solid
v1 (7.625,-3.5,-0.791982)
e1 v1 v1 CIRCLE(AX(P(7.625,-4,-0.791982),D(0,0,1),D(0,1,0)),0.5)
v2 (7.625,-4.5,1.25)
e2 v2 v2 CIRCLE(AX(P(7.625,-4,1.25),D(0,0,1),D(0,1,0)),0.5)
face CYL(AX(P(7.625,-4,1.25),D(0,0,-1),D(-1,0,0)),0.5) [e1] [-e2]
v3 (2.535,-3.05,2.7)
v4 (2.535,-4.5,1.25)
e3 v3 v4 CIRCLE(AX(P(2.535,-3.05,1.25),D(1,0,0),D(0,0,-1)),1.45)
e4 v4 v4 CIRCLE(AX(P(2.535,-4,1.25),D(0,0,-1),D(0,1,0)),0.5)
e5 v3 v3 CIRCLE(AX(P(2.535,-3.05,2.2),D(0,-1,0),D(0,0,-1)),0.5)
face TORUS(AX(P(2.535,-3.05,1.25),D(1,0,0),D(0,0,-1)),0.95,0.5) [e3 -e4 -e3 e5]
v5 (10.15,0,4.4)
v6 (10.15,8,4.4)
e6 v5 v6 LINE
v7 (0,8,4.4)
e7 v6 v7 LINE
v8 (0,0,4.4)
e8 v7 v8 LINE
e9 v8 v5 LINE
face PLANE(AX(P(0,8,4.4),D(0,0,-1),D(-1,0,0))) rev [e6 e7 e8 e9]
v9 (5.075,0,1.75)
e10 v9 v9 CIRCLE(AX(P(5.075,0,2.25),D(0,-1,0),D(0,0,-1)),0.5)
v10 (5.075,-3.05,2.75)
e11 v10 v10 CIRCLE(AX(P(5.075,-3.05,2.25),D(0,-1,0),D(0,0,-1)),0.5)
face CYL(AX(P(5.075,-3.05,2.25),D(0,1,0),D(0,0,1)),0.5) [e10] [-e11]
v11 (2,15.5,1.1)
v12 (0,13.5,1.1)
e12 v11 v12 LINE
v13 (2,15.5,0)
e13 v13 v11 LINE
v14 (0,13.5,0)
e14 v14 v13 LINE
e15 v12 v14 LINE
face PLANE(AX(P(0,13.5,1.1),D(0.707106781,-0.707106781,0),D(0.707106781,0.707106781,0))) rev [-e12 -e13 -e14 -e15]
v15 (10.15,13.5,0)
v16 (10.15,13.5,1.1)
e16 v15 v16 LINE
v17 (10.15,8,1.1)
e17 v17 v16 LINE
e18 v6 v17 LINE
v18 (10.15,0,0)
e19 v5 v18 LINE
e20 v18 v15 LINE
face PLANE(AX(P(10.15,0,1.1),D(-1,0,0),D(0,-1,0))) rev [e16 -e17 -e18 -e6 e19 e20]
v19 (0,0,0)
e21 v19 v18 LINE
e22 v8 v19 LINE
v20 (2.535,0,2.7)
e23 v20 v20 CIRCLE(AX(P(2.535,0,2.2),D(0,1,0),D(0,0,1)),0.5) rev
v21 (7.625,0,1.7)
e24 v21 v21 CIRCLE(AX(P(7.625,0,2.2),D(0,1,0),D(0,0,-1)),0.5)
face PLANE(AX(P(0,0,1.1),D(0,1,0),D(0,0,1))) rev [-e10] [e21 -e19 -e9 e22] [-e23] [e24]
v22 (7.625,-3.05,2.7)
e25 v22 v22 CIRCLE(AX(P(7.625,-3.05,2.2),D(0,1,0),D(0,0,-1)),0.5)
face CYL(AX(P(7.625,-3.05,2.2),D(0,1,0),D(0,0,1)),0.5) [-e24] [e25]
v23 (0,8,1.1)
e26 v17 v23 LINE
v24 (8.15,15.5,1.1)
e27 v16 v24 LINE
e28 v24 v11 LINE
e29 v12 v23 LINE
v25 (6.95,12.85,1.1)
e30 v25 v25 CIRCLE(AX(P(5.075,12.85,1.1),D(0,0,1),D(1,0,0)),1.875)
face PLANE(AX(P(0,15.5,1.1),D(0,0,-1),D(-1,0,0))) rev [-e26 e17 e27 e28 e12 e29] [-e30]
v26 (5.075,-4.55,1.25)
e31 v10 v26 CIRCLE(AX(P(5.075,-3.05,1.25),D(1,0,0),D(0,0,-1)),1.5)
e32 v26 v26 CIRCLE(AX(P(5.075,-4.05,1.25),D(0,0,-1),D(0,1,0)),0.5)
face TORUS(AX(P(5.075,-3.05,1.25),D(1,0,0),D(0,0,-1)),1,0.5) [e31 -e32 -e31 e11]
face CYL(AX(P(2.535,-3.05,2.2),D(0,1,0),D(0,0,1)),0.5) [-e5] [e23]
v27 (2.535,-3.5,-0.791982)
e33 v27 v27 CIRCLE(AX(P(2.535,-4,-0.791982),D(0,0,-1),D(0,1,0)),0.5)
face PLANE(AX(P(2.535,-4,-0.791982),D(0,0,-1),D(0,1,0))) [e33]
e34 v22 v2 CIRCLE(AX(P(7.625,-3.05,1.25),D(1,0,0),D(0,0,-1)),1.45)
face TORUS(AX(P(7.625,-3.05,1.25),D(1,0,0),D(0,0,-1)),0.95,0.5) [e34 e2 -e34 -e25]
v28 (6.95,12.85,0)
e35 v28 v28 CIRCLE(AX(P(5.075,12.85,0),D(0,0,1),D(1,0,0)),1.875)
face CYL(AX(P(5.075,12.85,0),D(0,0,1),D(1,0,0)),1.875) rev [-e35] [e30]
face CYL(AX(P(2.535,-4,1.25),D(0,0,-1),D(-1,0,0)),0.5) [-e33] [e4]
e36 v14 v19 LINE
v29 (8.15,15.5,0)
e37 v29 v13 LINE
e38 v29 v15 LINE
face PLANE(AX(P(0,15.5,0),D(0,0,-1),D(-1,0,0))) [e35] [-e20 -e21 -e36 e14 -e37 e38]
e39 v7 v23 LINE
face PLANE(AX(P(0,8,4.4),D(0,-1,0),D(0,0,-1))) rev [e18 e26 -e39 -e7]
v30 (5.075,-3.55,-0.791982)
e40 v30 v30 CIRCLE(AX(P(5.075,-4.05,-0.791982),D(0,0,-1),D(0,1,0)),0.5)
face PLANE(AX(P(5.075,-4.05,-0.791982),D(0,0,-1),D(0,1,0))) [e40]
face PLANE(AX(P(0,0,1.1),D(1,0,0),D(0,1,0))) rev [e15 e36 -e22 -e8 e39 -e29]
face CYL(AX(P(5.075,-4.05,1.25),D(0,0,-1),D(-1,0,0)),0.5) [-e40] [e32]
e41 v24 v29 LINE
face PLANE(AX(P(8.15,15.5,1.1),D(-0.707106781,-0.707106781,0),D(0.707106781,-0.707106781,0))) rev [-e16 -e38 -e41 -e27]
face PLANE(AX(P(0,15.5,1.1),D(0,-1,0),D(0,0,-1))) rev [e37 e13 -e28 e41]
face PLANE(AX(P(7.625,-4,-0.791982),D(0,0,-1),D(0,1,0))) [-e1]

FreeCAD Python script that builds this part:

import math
import FreeCAD as App
import Part
import Sketcher

V = App.Vector


def edges_at(feature, points):
    """Names of the edges that pass closest to the given points."""
    edges = feature.Shape.Edges
    near = lambda p: min(range(len(edges)), key=lambda i: edges[i].distToShape(Part.Vertex(*p))[0])
    return sorted({f"Edge{near(p) + 1}" for p in points})


def add_polygon(sketch, points):
    """Adds a closed chain of lines whose ends are joined by coincident constraints."""
    first, n = sketch.GeometryCount, len(points)
    for a, b in zip(points, points[1:] + points[:1]):
        sketch.addGeometry(Part.LineSegment(App.Vector(*a, 0), App.Vector(*b, 0)), False)
    for i in range(n):
        sketch.addConstraint(Sketcher.Constraint("Coincident", first + i, 2, first + (i + 1) % n, 1))

doc = App.newDocument("Part")
body = doc.addObject("PartDesign::Body", "Body")

sketch1 = body.newObject("Sketcher::SketchObject", "Sketch")
sketch1.AttachmentSupport = (doc.getObject("XY_Plane"), [""])
sketch1.MapMode = "FlatFace"
add_polygon(sketch1, [(0, 16), (0, 0), (10, 0), (10, 16)])
sketch1.addConstraint([
    Sketcher.Constraint("Vertical", 0),
    Sketcher.Constraint("Horizontal", 1),
    Sketcher.Constraint("Vertical", 2),
    Sketcher.Constraint("Horizontal", 3),
    Sketcher.Constraint("Coincident", 0, 2, -1, 1),
    Sketcher.Constraint("DistanceY", 0, 2, 0, 1, 15.5),
    Sketcher.Constraint("DistanceX", 1, 1, 1, 2, 10.15),
])
pad1 = body.newObject("PartDesign::Pad", "Pad")
pad1.Profile = sketch1
pad1.Length = 1.1

sketch2 = body.newObject("Sketcher::SketchObject", "Sketch001")
sketch2.AttachmentSupport = (doc.getObject("XY_Plane"), [""])
sketch2.MapMode = "FlatFace"
sketch2.AttachmentOffset = App.Placement(V(0, 0, 1.1), App.Rotation())
sketch2.addGeometry(Part.Circle(V(5.1, 12.8, 0), V(0, 0, 1), 1.9), False)
sketch2.addConstraint([
    Sketcher.Constraint("Diameter", 0, 3.75),
    Sketcher.Constraint("DistanceY", -1, 1, 0, 3, 12.85),
    Sketcher.Constraint("DistanceX", -1, 1, 0, 3, 5.075),
])
pocket1 = body.newObject("PartDesign::Pocket", "Pocket")
pocket1.Profile = sketch2
pocket1.Type = "ThroughAll"
doc.recompute()

chamfer = body.newObject("PartDesign::Chamfer", "Chamfer")
chamfer.Base = (pocket1, edges_at(pocket1, [(0, 15.5, 0.55), (10.15, 15.5, 0.55)]))
chamfer.Size = 2

sketch3 = body.newObject("Sketcher::SketchObject", "Sketch002")
sketch3.AttachmentSupport = (doc.getObject("XY_Plane"), [""])
sketch3.MapMode = "FlatFace"
sketch3.AttachmentOffset = App.Placement(V(0, 0, 1.1), App.Rotation())
add_polygon(sketch3, [(0, 8), (0, 0), (10, 0), (10, 8)])
sketch3.addConstraint([
    Sketcher.Constraint("Vertical", 0),
    Sketcher.Constraint("Horizontal", 1),
    Sketcher.Constraint("Vertical", 2),
    Sketcher.Constraint("Horizontal", 3),
    Sketcher.Constraint("Coincident", 0, 2, -1, 1),
    Sketcher.Constraint("DistanceY", 0, 2, 0, 1, 8.0),
    Sketcher.Constraint("DistanceX", 1, 1, 1, 2, 10.15),
])
pad2 = body.newObject("PartDesign::Pad", "Pad001")
pad2.Profile = sketch3
pad2.Length = 3.3

sketch4 = body.newObject("Sketcher::SketchObject", "Sketch003")
sketch4.AttachmentSupport = (doc.getObject("XZ_Plane"), [""])
sketch4.MapMode = "FlatFace"
sketch4.addGeometry(Part.Circle(V(2.5, 2.2, 0), V(0, 0, 1), 0.5), False)
sketch4.addConstraint([
    Sketcher.Constraint("Diameter", 0, 1.0),
    Sketcher.Constraint("DistanceY", -1, 1, 0, 3, 2.2),
    Sketcher.Constraint("DistanceX", -1, 1, 0, 3, 2.535),
])

sketch5 = body.newObject("Sketcher::SketchObject", "Sketch004")
sketch5.AttachmentSupport = (doc.getObject("YZ_Plane"), [""])
sketch5.MapMode = "FlatFace"
sketch5.AttachmentOffset = App.Placement(V(0, 0, 2.54), App.Rotation())
sketch5.addGeometry([
    Part.LineSegment(V(0, 2.2, 0), V(-3, 2.2, 0)),
    Part.ArcOfCircle(Part.Circle(V(-3, 1.2, 0), V(0, 0, 1), 1), math.radians(90), math.radians(180)),
    Part.LineSegment(V(-4, 1.2, 0), V(-4, -0.8, 0)),
], False)
sketch5.addConstraint([
    Sketcher.Constraint("Tangent", 0, 2, 1, 1),
    Sketcher.Constraint("Tangent", 1, 2, 2, 1),
    Sketcher.Constraint("Horizontal", 0),
    Sketcher.Constraint("Vertical", 2),
    Sketcher.Constraint("PointOnObject", 0, 1, -2),
    Sketcher.Constraint("Radius", 1, 1.0),
    Sketcher.Constraint("DistanceX", 0, 2, 0, 1, 3.05),
    Sketcher.Constraint("DistanceY", -1, 1, 1, 3, 1.25),
    Sketcher.Constraint("DistanceY", 2, 2, 2, 1, 2.041982),
])
doc.recompute()

additivepipe = body.newObject("PartDesign::AdditivePipe", "AdditivePipe")
additivepipe.Profile = sketch4
additivepipe.Spine = (sketch5, ["Edge1", "Edge2", "Edge3"])

sketch6 = body.newObject("Sketcher::SketchObject", "Sketch005")
sketch6.AttachmentSupport = (doc.getObject("XZ_Plane"), [""])
sketch6.MapMode = "FlatFace"
sketch6.addGeometry(Part.Circle(V(5.1, 2.2, 0), V(0, 0, 1), 0.5), False)
sketch6.addConstraint([
    Sketcher.Constraint("Diameter", 0, 1.0),
    Sketcher.Constraint("DistanceY", -1, 1, 0, 3, 2.25),
    Sketcher.Constraint("DistanceX", -1, 1, 0, 3, 5.075),
])

sketch7 = body.newObject("Sketcher::SketchObject", "Sketch006")
sketch7.AttachmentSupport = (doc.getObject("YZ_Plane"), [""])
sketch7.MapMode = "FlatFace"
sketch7.AttachmentOffset = App.Placement(V(0, 0, 5.08), App.Rotation())
sketch7.addGeometry([
    Part.LineSegment(V(0, 2.2, 0), V(-3, 2.2, 0)),
    Part.ArcOfCircle(Part.Circle(V(-3, 1.2, 0), V(0, 0, 1), 1), math.radians(90), math.radians(180)),
    Part.LineSegment(V(-4, 1.2, 0), V(-4, -0.8, 0)),
], False)
sketch7.addConstraint([
    Sketcher.Constraint("Tangent", 0, 2, 1, 1),
    Sketcher.Constraint("Tangent", 1, 2, 2, 1),
    Sketcher.Constraint("Horizontal", 0),
    Sketcher.Constraint("Vertical", 2),
    Sketcher.Constraint("PointOnObject", 0, 1, -2),
    Sketcher.Constraint("Radius", 1, 1.0),
    Sketcher.Constraint("DistanceX", 0, 2, 0, 1, 3.05),
    Sketcher.Constraint("DistanceY", -1, 1, 1, 3, 1.25),
    Sketcher.Constraint("DistanceY", 2, 2, 2, 1, 2.041982),
])
doc.recompute()

additivepipe2 = body.newObject("PartDesign::AdditivePipe", "AdditivePipe001")
additivepipe2.Profile = sketch6
additivepipe2.Spine = (sketch7, ["Edge1", "Edge2", "Edge3"])
doc.recompute()

datumplane = body.newObject("PartDesign::Plane", "DatumPlane")
datumplane.AttachmentSupport = (doc.getObject("YZ_Plane"), [""])
datumplane.MapMode = "FlatFace"
datumplane.AttachmentOffset = App.Placement(V(0, 0, 5.08), App.Rotation())
mirrored = body.newObject("PartDesign::Mirrored", "Mirrored")
mirrored.Originals = [additivepipe]
mirrored.MirrorPlane = (datumplane, [""])
body.Tip = mirrored

doc.recompute()
